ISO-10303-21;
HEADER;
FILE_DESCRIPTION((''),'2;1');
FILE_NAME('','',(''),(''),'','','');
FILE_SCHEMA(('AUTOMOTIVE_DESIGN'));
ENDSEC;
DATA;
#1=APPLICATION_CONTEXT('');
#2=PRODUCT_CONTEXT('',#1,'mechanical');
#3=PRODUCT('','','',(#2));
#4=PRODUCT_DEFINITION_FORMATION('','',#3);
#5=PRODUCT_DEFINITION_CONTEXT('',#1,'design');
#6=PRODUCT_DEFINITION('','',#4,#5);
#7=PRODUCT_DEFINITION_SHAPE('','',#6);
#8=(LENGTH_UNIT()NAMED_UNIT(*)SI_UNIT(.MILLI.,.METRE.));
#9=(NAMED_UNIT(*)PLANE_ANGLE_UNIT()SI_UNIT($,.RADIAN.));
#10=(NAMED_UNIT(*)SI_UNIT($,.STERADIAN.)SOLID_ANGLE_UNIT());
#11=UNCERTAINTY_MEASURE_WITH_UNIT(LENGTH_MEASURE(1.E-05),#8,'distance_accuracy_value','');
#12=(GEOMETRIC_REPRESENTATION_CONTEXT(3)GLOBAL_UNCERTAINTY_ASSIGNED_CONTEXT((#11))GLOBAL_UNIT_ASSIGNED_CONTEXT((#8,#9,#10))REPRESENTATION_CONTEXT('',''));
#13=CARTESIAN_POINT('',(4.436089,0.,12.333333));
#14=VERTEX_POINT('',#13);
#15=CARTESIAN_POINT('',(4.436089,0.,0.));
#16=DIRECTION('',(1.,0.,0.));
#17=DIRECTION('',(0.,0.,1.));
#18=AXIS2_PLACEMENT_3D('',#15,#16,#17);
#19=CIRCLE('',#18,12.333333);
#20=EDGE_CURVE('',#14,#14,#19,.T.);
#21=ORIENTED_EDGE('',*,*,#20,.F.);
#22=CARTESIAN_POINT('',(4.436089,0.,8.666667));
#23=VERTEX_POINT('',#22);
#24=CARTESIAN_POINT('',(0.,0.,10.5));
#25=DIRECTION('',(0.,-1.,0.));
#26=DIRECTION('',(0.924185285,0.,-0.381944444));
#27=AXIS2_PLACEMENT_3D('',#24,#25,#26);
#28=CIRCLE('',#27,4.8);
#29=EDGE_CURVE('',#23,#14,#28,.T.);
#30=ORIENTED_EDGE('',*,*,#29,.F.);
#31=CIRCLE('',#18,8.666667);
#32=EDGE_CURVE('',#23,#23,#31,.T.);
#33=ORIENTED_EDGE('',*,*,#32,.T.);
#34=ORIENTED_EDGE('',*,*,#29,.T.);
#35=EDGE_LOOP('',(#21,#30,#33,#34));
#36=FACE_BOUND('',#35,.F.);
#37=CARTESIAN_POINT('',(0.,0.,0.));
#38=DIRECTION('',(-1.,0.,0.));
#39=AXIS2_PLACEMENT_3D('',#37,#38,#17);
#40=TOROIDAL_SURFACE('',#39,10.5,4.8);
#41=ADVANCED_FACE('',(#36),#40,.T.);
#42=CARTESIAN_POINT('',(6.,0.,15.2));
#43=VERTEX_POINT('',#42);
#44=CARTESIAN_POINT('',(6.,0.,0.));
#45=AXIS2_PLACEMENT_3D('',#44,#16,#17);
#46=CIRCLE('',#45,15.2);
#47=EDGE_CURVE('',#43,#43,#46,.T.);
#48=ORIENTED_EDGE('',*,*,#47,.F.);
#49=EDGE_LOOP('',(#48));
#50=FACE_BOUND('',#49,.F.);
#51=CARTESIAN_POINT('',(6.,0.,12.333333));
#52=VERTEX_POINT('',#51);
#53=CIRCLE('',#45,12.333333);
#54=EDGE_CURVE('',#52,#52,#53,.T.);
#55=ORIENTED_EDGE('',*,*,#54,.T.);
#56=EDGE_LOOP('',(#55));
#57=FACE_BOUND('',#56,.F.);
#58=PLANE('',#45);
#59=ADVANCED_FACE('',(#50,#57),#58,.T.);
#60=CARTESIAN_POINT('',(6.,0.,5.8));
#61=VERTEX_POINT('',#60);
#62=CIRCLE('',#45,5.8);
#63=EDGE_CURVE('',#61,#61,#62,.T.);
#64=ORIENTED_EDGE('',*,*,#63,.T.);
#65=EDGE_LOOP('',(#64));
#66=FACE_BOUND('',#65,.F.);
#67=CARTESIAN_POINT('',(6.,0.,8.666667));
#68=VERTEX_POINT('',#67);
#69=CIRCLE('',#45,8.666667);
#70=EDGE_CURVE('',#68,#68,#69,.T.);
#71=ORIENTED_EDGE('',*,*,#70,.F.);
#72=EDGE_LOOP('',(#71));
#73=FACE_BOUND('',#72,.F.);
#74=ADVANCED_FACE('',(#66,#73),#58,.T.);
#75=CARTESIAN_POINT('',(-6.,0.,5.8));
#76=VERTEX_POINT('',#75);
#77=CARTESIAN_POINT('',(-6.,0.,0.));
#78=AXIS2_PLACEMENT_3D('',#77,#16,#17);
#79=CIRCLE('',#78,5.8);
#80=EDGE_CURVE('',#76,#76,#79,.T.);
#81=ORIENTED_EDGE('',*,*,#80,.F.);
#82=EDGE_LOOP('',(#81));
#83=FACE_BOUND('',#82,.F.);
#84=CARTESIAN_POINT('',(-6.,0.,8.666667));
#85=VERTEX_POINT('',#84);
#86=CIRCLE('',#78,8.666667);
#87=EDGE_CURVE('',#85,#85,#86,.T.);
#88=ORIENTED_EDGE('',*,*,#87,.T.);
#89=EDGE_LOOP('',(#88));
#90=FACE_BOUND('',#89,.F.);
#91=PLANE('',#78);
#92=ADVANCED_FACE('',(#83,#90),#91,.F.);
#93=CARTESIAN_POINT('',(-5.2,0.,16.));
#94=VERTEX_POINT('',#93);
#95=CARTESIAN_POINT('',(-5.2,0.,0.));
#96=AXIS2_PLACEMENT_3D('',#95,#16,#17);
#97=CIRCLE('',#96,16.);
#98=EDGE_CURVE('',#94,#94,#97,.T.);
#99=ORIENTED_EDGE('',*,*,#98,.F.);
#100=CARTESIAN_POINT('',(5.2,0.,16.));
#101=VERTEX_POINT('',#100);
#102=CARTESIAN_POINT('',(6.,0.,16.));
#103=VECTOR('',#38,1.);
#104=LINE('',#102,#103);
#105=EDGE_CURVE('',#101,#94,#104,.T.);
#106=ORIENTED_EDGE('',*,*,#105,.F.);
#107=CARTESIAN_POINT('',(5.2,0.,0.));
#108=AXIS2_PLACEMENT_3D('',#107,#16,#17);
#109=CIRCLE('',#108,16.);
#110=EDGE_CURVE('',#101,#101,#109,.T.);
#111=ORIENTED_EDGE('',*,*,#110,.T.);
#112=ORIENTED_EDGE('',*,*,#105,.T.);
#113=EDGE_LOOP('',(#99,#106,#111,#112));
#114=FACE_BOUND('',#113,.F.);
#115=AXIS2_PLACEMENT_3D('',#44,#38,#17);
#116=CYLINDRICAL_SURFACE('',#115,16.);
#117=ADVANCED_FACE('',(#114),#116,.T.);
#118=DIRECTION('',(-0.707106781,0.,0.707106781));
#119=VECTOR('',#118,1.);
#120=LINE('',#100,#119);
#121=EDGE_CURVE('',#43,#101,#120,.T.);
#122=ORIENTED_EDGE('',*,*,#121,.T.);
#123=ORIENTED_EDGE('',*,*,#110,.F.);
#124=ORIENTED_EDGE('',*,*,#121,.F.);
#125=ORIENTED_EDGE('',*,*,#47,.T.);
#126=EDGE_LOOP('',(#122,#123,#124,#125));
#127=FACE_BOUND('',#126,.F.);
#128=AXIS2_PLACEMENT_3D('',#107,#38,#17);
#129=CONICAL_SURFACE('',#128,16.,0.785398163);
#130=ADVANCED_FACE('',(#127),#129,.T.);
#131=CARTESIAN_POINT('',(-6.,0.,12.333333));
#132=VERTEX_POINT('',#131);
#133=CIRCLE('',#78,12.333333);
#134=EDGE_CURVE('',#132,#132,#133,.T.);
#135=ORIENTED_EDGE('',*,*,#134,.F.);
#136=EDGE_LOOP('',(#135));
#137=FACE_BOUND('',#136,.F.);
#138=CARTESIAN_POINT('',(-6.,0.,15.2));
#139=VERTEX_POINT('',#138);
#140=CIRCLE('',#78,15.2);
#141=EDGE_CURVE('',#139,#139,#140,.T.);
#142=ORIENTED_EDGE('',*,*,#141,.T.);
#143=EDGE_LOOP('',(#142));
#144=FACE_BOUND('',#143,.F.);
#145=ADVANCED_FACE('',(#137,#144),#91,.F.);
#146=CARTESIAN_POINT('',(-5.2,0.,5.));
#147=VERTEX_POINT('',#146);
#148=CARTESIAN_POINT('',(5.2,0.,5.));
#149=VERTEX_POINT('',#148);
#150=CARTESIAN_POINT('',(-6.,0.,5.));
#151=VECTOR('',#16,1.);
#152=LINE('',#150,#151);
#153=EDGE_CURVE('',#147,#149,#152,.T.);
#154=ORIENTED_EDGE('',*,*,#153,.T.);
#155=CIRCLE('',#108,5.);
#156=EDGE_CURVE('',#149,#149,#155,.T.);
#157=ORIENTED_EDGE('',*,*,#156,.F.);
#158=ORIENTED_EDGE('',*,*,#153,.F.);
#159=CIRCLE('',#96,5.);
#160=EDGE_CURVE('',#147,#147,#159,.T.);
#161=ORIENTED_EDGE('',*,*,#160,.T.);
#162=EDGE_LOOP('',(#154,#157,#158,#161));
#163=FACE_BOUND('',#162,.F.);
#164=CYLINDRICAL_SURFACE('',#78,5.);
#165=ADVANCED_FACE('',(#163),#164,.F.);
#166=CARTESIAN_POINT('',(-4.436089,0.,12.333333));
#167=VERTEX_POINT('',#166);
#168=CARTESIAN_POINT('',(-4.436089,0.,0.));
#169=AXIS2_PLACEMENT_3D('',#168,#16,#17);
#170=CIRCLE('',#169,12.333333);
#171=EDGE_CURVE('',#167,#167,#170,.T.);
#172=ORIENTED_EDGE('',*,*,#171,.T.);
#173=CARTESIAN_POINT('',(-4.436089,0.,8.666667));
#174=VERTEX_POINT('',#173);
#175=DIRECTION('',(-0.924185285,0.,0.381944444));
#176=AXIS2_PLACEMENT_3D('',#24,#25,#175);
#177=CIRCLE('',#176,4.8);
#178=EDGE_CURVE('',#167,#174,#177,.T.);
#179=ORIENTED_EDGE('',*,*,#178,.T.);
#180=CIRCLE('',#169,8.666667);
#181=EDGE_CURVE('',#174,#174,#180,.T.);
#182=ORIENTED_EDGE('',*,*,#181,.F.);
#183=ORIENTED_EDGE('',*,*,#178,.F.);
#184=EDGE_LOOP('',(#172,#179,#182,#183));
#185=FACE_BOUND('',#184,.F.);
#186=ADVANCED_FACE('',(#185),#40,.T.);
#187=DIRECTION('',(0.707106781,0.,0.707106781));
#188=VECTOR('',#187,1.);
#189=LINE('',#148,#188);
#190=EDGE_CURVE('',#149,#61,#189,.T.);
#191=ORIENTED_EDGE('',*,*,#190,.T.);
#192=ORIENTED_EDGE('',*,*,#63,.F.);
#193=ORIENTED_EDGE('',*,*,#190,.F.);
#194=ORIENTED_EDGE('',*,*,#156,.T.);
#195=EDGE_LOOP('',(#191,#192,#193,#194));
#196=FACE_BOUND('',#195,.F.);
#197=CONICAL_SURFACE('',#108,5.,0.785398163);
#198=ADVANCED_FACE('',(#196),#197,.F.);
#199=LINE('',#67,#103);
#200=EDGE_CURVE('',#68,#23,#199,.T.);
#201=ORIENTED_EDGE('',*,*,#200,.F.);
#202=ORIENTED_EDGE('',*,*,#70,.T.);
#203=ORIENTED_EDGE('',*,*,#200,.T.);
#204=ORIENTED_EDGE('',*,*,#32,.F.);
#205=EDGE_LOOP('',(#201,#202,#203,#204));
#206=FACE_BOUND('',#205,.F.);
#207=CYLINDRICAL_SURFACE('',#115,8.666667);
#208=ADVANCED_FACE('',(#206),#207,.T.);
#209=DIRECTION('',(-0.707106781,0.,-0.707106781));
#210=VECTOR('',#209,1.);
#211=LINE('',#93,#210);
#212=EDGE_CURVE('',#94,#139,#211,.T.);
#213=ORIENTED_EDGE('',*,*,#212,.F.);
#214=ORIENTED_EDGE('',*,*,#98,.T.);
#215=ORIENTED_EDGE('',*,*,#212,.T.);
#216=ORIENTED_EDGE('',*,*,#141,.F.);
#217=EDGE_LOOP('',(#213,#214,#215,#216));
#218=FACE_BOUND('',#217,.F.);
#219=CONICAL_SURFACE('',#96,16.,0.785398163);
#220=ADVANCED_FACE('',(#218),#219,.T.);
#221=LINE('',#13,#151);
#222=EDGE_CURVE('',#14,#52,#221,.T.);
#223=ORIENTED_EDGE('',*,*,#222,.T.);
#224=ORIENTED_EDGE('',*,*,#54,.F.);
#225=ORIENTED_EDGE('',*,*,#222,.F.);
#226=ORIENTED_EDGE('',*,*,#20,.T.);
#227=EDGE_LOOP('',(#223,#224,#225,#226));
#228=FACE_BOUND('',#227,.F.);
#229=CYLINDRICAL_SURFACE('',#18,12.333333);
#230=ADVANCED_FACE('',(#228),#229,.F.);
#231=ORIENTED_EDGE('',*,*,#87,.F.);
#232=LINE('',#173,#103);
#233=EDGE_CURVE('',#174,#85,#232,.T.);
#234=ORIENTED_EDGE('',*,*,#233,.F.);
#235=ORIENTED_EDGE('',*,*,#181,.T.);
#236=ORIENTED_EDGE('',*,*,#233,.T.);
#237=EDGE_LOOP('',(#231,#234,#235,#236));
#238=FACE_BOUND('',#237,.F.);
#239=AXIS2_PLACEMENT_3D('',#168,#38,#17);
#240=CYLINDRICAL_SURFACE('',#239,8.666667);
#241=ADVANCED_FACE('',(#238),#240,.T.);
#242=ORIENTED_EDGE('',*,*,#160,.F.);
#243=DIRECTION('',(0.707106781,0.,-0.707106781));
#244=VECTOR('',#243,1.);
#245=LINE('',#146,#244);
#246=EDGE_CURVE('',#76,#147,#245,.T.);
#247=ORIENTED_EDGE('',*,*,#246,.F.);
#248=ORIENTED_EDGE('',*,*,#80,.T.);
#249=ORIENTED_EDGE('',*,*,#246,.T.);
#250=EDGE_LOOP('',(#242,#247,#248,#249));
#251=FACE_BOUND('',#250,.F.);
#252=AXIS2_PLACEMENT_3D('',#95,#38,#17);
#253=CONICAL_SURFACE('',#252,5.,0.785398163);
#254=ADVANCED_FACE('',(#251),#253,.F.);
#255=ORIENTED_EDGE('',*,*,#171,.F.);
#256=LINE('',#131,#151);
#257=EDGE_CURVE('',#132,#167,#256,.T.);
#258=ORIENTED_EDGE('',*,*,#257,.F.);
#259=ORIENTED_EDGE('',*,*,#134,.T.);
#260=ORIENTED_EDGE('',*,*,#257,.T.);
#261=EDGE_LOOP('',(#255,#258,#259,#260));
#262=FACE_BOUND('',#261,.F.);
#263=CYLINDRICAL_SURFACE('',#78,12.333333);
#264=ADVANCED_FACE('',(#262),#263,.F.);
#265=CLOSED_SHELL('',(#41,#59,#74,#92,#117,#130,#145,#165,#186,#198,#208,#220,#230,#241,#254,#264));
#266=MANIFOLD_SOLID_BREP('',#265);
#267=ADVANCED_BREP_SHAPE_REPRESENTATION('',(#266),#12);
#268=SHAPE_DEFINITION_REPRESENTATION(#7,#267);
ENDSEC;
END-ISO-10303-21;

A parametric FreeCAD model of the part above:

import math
import FreeCAD as App
import Part
import Sketcher

V = App.Vector


def edges_at(feature, points):
    """Names of the edges that pass closest to the given points."""
    edges = feature.Shape.Edges
    near = lambda p: min(range(len(edges)), key=lambda i: edges[i].distToShape(Part.Vertex(*p))[0])
    return sorted({f"Edge{near(p) + 1}" for p in points})

doc = App.newDocument("Part")
body = doc.addObject("PartDesign::Body", "Body")

# Sketch on XZ plane
sketch1 = body.newObject("Sketcher::SketchObject", "Sketch")
sketch1.AttachmentSupport = (doc.getObject("XZ_Plane"), [""])
sketch1.MapMode = "FlatFace"
sketch1.addGeometry([
    Part.LineSegment(V(4.436089, 12.333333, 0), V(6, 12.333333, 0)),  # 0
    Part.LineSegment(V(6, 12.333333, 0), V(6, 16, 0)),  # 1
    Part.LineSegment(V(6, 16, 0), V(-6, 16, 0)),  # 2
    Part.LineSegment(V(-6, 16, 0), V(-6, 12.333333, 0)),  # 3
    Part.LineSegment(V(-6, 12.333333, 0), V(-4.436089, 12.333333, 0)),  # 4
    Part.ArcOfCircle(Part.Circle(V(0, 10.5, 0), V(0, 0, 1), 4.8), math.radians(157.545822), math.radians(202.454178)),  # 5
    Part.LineSegment(V(-4.436089, 8.666667, 0), V(-6, 8.666667, 0)),  # 6
    Part.LineSegment(V(-6, 8.666667, 0), V(-6, 5, 0)),  # 7
    Part.LineSegment(V(-6, 5, 0), V(6, 5, 0)),  # 8
    Part.LineSegment(V(6, 5, 0), V(6, 8.666667, 0)),  # 9
    Part.LineSegment(V(6, 8.666667, 0), V(4.436089, 8.666667, 0)),  # 10
    Part.ArcOfCircle(Part.Circle(V(0, 10.5, 0), V(0, 0, 1), 4.8), math.radians(-22.454178), math.radians(22.454178)),  # 11
], False)
sketch1.addConstraint([
    Sketcher.Constraint("Coincident", 0, 2, 1, 1),
    Sketcher.Constraint("Coincident", 1, 2, 2, 1),
    Sketcher.Constraint("Coincident", 2, 2, 3, 1),
    Sketcher.Constraint("Coincident", 3, 2, 4, 1),
    Sketcher.Constraint("Coincident", 4, 2, 5, 1),
    Sketcher.Constraint("Coincident", 5, 2, 6, 1),
    Sketcher.Constraint("Coincident", 6, 2, 7, 1),
    Sketcher.Constraint("Coincident", 7, 2, 8, 1),
    Sketcher.Constraint("Coincident", 8, 2, 9, 1),
    Sketcher.Constraint("Coincident", 9, 2, 10, 1),
    Sketcher.Constraint("Coincident", 10, 2, 11, 1),
    Sketcher.Constraint("Coincident", 11, 2, 0, 1),
    Sketcher.Constraint("Horizontal", 0),
    Sketcher.Constraint("Vertical", 1),
    Sketcher.Constraint("Horizontal", 2),
    Sketcher.Constraint("Vertical", 3),
    Sketcher.Constraint("Horizontal", 4),
    Sketcher.Constraint("Horizontal", 6),
    Sketcher.Constraint("Vertical", 7),
    Sketcher.Constraint("Horizontal", 8),
    Sketcher.Constraint("Vertical", 9),
    Sketcher.Constraint("Horizontal", 10),
    Sketcher.Constraint("Coincident", 11, 3, 5, 3),
    Sketcher.Constraint("Equal", 5, 11),
    Sketcher.Constraint("Symmetric", 0, 2, 3, 2, -2),
    Sketcher.Constraint("Symmetric", 6, 2, 9, 2, -2),
    Sketcher.Constraint("PointOnObject", 5, 3, -2),
    Sketcher.Constraint("Vertical", 4, 2, 5, 2),
    Sketcher.Constraint("Vertical", 3, 2, 6, 2),
    Sketcher.Constraint("Equal", 3, 7),
    Sketcher.Constraint("Radius", 5, 4.8),
    Sketcher.Constraint("DistanceX", 2, 2, 2, 1, 12.0),
    Sketcher.Constraint("DistanceY", -1, 1, 1, 2, 16.0),
    Sketcher.Constraint("DistanceY", -1, 1, 7, 2, 5.0),
    Sketcher.Constraint("DistanceX", 0, 1, 0, 2, 1.563911),
])
revolution = body.newObject("PartDesign::Revolution", "Revolution")
revolution.Profile = sketch1
revolution.ReferenceAxis = (sketch1, ["H_Axis"])
revolution.Angle = 360
doc.recompute()

chamfer = body.newObject("PartDesign::Chamfer", "Chamfer")
chamfer.Base = (revolution, edges_at(revolution, [
    (-6, 0, -16),
    (6, 0, -16),
    (6, 0, -5),
    (-6, 0, -5),
]))
chamfer.Size = 0.8

doc.recompute()
